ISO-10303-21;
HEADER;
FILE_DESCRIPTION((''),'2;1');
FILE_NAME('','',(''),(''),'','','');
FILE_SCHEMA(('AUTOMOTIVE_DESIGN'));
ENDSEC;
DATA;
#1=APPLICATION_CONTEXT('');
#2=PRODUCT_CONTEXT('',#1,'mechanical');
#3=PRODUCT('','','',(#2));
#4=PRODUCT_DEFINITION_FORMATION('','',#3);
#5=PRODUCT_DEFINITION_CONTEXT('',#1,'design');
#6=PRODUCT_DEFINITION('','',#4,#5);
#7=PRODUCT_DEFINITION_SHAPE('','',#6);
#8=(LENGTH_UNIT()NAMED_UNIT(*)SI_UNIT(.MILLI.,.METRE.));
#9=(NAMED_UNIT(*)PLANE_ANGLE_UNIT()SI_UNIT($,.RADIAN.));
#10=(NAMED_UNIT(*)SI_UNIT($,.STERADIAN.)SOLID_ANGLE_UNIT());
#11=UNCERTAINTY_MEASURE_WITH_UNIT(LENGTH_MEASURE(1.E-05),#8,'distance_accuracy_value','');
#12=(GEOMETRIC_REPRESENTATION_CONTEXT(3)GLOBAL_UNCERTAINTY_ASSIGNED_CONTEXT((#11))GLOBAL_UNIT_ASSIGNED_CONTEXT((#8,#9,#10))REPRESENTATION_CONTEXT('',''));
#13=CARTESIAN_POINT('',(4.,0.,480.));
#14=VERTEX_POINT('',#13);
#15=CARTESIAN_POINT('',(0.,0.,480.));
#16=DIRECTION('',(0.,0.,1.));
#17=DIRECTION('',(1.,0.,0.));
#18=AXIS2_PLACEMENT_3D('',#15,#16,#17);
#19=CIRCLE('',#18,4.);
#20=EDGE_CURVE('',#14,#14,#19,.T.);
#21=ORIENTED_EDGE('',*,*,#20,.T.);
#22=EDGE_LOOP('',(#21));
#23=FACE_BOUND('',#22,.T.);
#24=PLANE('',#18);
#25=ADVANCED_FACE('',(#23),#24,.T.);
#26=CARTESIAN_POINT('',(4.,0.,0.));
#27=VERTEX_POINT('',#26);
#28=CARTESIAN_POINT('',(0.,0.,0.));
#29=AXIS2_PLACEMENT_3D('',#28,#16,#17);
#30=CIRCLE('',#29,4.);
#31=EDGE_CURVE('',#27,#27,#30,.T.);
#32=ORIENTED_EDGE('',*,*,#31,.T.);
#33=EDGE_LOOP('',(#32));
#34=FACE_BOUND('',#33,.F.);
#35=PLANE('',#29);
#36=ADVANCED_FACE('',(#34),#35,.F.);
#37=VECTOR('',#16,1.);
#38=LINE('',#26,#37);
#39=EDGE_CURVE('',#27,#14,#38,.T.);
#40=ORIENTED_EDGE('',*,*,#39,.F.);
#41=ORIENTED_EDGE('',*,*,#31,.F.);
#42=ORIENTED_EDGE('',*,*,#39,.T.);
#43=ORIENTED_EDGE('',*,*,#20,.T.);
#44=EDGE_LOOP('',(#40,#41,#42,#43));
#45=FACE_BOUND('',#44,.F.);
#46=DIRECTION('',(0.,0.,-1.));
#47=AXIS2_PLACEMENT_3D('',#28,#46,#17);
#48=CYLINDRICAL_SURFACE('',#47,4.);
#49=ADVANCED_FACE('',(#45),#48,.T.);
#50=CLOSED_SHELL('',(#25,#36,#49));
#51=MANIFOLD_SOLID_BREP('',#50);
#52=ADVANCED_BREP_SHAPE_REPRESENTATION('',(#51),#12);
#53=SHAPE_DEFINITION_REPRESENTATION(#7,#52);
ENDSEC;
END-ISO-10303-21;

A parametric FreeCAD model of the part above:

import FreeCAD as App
import Part
import Sketcher
from FreeCAD import Vector

doc = App.newDocument("Part")
body = doc.addObject("PartDesign::Body", "Body")

# Sketch on XY plane
sketch1 = doc.addObject("Sketcher::SketchObject", "Sketch")
body.addObject(sketch1)
sketch1.AttachmentSupport = (doc.XY_Plane, [""])
sketch1.MapMode = "FlatFace"
sketch1.addGeometry(Part.Circle(Vector(0, 0, 0), Vector(0, 0, 1), 4), False)
sketch1.addConstraint([
    Sketcher.Constraint("Coincident", 0, 3, -1, 1),
    Sketcher.Constraint("Diameter", 0, 8.0),
])
pad1 = doc.addObject("PartDesign::Pad", "Pad")
body.addObject(pad1)
pad1.Profile = sketch1
pad1.Length = 480

doc.recompute()
